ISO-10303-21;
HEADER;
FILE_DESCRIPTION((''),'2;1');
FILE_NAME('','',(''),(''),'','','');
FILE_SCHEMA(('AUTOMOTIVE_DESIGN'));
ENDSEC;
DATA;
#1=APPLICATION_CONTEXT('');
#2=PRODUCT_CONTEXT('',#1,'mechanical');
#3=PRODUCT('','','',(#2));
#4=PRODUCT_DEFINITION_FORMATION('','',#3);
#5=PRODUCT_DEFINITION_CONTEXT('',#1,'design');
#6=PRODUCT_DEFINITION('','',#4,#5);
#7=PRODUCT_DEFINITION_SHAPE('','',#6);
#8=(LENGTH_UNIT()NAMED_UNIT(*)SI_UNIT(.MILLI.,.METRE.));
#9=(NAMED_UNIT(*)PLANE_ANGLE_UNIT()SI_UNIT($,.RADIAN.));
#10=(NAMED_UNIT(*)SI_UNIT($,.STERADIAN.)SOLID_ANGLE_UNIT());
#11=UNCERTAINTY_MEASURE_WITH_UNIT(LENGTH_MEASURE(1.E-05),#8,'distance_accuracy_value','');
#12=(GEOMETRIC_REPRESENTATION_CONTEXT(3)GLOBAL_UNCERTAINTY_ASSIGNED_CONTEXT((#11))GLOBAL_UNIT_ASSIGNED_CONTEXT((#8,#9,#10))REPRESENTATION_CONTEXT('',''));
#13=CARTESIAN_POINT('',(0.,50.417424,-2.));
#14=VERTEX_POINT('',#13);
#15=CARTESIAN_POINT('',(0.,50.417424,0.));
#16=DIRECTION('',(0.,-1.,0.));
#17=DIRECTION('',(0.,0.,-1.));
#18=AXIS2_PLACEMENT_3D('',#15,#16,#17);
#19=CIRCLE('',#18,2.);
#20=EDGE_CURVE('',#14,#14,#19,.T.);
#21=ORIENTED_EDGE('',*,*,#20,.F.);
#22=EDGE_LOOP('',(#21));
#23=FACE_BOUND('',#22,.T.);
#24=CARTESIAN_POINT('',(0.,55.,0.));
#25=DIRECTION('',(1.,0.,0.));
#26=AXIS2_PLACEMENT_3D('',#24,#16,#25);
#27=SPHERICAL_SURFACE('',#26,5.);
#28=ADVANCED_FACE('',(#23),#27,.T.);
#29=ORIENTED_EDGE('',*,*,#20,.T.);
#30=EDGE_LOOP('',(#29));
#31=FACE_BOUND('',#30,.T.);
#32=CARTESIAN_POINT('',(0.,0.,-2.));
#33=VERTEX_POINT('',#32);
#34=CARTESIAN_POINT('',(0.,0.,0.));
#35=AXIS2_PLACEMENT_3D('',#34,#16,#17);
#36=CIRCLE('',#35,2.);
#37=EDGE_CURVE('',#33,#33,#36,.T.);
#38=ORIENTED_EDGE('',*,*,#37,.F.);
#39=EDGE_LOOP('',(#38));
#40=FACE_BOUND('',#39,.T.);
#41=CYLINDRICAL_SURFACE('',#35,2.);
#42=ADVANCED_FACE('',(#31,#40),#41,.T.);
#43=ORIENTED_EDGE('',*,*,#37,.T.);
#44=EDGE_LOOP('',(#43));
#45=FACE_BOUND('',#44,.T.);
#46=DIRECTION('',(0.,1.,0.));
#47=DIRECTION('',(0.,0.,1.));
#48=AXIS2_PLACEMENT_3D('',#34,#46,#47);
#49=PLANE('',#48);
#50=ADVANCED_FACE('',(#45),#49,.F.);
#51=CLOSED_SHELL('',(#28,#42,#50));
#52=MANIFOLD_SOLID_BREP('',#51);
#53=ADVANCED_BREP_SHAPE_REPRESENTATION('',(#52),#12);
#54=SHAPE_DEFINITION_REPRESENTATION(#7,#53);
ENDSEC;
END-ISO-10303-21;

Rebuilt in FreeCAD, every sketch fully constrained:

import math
import FreeCAD as App
import Part
import Sketcher
from FreeCAD import Vector

doc = App.newDocument("Part")
body = doc.addObject("PartDesign::Body", "Body")

sketch1 = body.newObject("Sketcher::SketchObject", "Sketch")
sketch1.AttachmentSupport = (doc.getObject("XY_Plane"), [""])
sketch1.MapMode = "FlatFace"
sketch1.addGeometry(Part.LineSegment(Vector(-2, 0, 0), Vector(0, 0, 0)), False)
sketch1.addGeometry(Part.LineSegment(Vector(0, 0, 0), Vector(0, 60, 0)), False)
sketch1.addGeometry(Part.ArcOfCircle(Part.Circle(Vector(0, 55, 0), Vector(0, 0, 1), 5), math.radians(90), math.radians(246)), False)
sketch1.addGeometry(Part.LineSegment(Vector(-2, 50.4, 0), Vector(-2, 0, 0)), False)
sketch1.addConstraint(Sketcher.Constraint("Coincident", 0, 2, 1, 1))
sketch1.addConstraint(Sketcher.Constraint("Coincident", 1, 2, 2, 1))
sketch1.addConstraint(Sketcher.Constraint("Coincident", 2, 2, 3, 1))
sketch1.addConstraint(Sketcher.Constraint("Coincident", 3, 2, 0, 1))
sketch1.addConstraint(Sketcher.Constraint("Horizontal", 0))
sketch1.addConstraint(Sketcher.Constraint("Vertical", 1))
sketch1.addConstraint(Sketcher.Constraint("Vertical", 3))
sketch1.addConstraint(Sketcher.Constraint("Coincident", 0, 2, -1, 1))
sketch1.addConstraint(Sketcher.Constraint("PointOnObject", 2, 3, -2))
sketch1.addConstraint(Sketcher.Constraint("Radius", 2, 5.0))
sketch1.addConstraint(Sketcher.Constraint("DistanceX", 0, 1, 0, 2, 2.0))
sketch1.addConstraint(Sketcher.Constraint("DistanceY", 1, 1, 1, 2, 60.0))
revolution = body.newObject("PartDesign::Revolution", "Revolution")
revolution.Profile = sketch1
revolution.ReferenceAxis = (sketch1, ["V_Axis"])
revolution.Angle = 360

doc.recompute()
